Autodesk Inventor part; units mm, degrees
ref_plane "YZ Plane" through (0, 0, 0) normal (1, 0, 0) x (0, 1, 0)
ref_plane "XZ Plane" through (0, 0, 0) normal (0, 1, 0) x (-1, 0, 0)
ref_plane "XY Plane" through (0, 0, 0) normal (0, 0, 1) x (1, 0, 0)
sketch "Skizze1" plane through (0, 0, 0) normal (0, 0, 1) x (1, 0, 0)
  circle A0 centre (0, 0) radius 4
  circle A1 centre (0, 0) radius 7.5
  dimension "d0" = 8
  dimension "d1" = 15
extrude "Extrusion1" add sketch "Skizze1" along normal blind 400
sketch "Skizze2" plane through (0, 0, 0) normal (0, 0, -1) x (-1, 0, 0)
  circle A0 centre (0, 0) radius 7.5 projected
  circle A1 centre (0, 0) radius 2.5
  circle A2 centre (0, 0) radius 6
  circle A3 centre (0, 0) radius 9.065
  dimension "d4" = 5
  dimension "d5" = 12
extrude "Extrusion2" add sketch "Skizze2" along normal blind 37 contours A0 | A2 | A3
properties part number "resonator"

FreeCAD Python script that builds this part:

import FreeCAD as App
import Part
import Sketcher

V = App.Vector
Q = App.Units.Quantity

doc = App.newDocument("Part")
body = doc.addObject("PartDesign::Body", "Body")

# Sketch on XY plane
sketch1 = body.newObject("Sketcher::SketchObject", "Sketch")
sketch1.AttachmentSupport = (doc.getObject("XY_Plane"), [""])
sketch1.MapMode = "FlatFace"
sketch1.addGeometry([
    Part.Circle(V(0, 0, 0), V(0, 0, 1), 7.5),
    Part.Circle(V(0, 0, 0), V(0, 0, 1), 4),
], False)
sketch1.addConstraint([
    Sketcher.Constraint("Coincident", 0, 3, -1, 1),
    Sketcher.Constraint("Coincident", 1, 3, -1, 1),
    Sketcher.Constraint("Diameter", 0, Q("15 mm")),
    Sketcher.Constraint("Diameter", 1, Q("8 mm")),
])
pad1 = body.newObject("PartDesign::Pad", "Pad")
pad1.Profile = sketch1
pad1.Length = 400

# Sketch on XY plane
sketch2 = body.newObject("Sketcher::SketchObject", "Sketch001")
sketch2.AttachmentSupport = (doc.getObject("XY_Plane"), [""])
sketch2.MapMode = "FlatFace"
sketch2.addGeometry([
    Part.Circle(V(0, 0, 0), V(0, 0, 1), 9.065),
    Part.Circle(V(0, 0, 0), V(0, 0, 1), 2.5),
], False)
sketch2.addConstraint([
    Sketcher.Constraint("Coincident", 0, 3, -1, 1),
    Sketcher.Constraint("Coincident", 1, 3, -1, 1),
    Sketcher.Constraint("Diameter", 1, Q("5 mm")),
    Sketcher.Constraint("Diameter", 0, Q("18.13 mm")),
])
pad2 = body.newObject("PartDesign::Pad", "Pad001")
pad2.Profile = sketch2
pad2.Length = 37
pad2.Reversed = True

doc.recompute()
